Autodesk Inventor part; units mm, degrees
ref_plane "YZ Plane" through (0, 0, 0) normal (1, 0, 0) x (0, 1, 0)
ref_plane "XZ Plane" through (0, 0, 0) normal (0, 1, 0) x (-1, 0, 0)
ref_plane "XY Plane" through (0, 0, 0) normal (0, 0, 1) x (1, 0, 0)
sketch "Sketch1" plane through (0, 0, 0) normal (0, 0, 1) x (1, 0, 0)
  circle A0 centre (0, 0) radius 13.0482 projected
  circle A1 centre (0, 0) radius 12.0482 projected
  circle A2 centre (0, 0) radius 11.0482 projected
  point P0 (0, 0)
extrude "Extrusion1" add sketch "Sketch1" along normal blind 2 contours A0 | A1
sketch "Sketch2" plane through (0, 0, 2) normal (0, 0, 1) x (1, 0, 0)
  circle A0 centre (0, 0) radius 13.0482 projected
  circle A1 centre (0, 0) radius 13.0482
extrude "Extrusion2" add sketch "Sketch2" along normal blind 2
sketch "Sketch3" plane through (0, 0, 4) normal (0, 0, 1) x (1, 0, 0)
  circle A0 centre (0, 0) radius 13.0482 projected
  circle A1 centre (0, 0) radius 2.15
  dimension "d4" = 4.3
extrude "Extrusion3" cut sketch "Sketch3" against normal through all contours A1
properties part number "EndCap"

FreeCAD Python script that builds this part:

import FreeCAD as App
import Part
import Sketcher

V = App.Vector
Q = App.Units.Quantity

doc = App.newDocument("Part")
body = doc.addObject("PartDesign::Body", "Body")

# Sketch on XY plane
sketch1 = body.newObject("Sketcher::SketchObject", "Sketch")
sketch1.AttachmentSupport = (doc.getObject("XY_Plane"), [""])
sketch1.MapMode = "FlatFace"
sketch1.addGeometry([
    Part.Circle(V(0, 0, 0), V(0, 0, 1), 13),
    Part.Circle(V(0, 0, 0), V(0, 0, 1), 11),
], False)
sketch1.addConstraint([
    Sketcher.Constraint("Coincident", 0, 3, -1, 1),
    Sketcher.Constraint("Coincident", 1, 3, -1, 1),
    Sketcher.Constraint("Diameter", 0, Q("26.0964 mm")),
    Sketcher.Constraint("Diameter", 1, Q("22.0964 mm")),
])
pad1 = body.newObject("PartDesign::Pad", "Pad")
pad1.Profile = sketch1
pad1.Length = 2

# Sketch on XY plane
sketch2 = body.newObject("Sketcher::SketchObject", "Sketch001")
sketch2.AttachmentSupport = (doc.getObject("XY_Plane"), [""])
sketch2.MapMode = "FlatFace"
sketch2.AttachmentOffset = App.Placement(V(0, 0, 2), App.Rotation())
sketch2.addGeometry(Part.Circle(V(0, 0, 0), V(0, 0, 1), 13), False)
sketch2.addConstraint([
    Sketcher.Constraint("Coincident", 0, 3, -1, 1),
    Sketcher.Constraint("Diameter", 0, Q("26.0964 mm")),
])
pad2 = body.newObject("PartDesign::Pad", "Pad001")
pad2.Profile = sketch2
pad2.Length = 2

# Sketch on XY plane
sketch3 = body.newObject("Sketcher::SketchObject", "Sketch002")
sketch3.AttachmentSupport = (doc.getObject("XY_Plane"), [""])
sketch3.MapMode = "FlatFace"
sketch3.AttachmentOffset = App.Placement(V(0, 0, 4), App.Rotation())
sketch3.addGeometry(Part.Circle(V(0, 0, 0), V(0, 0, 1), 2.1), False)
sketch3.addConstraint([
    Sketcher.Constraint("Coincident", 0, 3, -1, 1),
    Sketcher.Constraint("Diameter", 0, Q("4.3 mm")),
])
pocket1 = body.newObject("PartDesign::Pocket", "Pocket")
pocket1.Profile = sketch3
pocket1.Type = "ThroughAll"

doc.recompute()
